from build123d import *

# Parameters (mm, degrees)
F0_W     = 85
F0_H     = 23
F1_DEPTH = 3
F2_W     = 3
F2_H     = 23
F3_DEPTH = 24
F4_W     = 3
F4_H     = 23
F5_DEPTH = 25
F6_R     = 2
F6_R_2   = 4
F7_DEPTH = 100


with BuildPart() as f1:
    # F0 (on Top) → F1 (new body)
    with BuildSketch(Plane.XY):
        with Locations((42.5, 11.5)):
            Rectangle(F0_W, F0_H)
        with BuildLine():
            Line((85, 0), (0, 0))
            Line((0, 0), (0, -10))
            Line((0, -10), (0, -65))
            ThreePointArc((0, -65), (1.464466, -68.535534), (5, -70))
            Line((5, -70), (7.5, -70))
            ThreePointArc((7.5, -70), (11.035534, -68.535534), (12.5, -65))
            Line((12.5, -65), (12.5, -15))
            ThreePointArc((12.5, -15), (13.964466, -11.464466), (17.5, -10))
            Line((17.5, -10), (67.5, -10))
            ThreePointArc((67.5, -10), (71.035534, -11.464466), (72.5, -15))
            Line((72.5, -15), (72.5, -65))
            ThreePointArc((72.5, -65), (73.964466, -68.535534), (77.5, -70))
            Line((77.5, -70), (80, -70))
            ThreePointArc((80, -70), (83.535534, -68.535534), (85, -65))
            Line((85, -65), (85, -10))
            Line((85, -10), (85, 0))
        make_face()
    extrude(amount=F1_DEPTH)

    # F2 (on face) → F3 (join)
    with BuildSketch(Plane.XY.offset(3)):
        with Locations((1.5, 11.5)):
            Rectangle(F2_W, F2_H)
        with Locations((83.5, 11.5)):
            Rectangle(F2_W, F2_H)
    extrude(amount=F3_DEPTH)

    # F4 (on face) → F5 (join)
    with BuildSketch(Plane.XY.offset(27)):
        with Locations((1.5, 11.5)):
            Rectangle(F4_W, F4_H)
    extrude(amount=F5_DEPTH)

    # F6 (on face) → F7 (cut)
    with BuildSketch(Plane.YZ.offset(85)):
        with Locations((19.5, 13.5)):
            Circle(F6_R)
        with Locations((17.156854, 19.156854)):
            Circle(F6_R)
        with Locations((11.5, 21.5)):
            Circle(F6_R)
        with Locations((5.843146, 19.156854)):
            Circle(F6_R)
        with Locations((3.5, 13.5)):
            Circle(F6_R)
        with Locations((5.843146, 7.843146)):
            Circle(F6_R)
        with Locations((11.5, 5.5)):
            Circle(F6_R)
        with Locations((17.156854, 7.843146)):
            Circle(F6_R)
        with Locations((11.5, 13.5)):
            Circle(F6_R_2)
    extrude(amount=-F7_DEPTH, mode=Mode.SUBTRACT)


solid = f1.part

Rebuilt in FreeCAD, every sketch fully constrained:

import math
import FreeCAD as App
import Part
import Sketcher
Q = App.Units.Quantity


def add_polygon(sketch, points):
    """Adds a closed chain of lines whose ends are joined by coincident constraints."""
    first, n = sketch.GeometryCount, len(points)
    for a, b in zip(points, points[1:] + points[:1]):
        sketch.addGeometry(Part.LineSegment(App.Vector(*a, 0), App.Vector(*b, 0)), False)
    for i in range(n):
        sketch.addConstraint(Sketcher.Constraint("Coincident", first + i, 2, first + (i + 1) % n, 1))

doc = App.newDocument("Part")
params = doc.addObject("Spreadsheet::Sheet", "Params")
for row, (alias, value) in enumerate([
    ("sketch1_radius", "5 mm"),
    ("sketch1_width", "50 mm"),
    ("sketch1_width2", "85 mm"),
    ("sketch1_height", "88 mm"),
    ("pad1_length", "3 mm"),
    ("sketch2_width", "3 mm"),
    ("sketch2_height", "23 mm"),
    ("pad2_length", "24 mm"),
    ("sketch3_width", "3 mm"),
    ("sketch3_height", "23 mm"),
    ("pad3_length", "25 mm"),
    ("sketch4_diameter", "4 mm"),
    ("sketch4_diameter2", "8 mm"),
    ("pocket1_length", "100 mm"),
], start=1):
    params.set(f"A{row}", alias)
    params.set(f"B{row}", "=" + value)
    params.setAlias(f"B{row}", alias)

body = doc.addObject("PartDesign::Body", "Body")

# Sketch on XY plane
sketch1 = doc.addObject("Sketcher::SketchObject", "Sketch")
body.addObject(sketch1)
sketch1.AttachmentSupport = (doc.XY_Plane, [""])
sketch1.MapMode = "FlatFace"
sketch1.addGeometry(Part.LineSegment(App.Vector(0, 23, 0), App.Vector(0, -65, 0)), False)
sketch1.addGeometry(Part.ArcOfCircle(Part.Circle(App.Vector(5, -65, 0), App.Vector(0, 0, 1), 5), math.radians(179.999996), math.radians(270.000004)), False)
sketch1.addGeometry(Part.LineSegment(App.Vector(5, -70, 0), App.Vector(7.5, -70, 0)), False)
sketch1.addGeometry(Part.ArcOfCircle(Part.Circle(App.Vector(7.5, -65, 0), App.Vector(0, 0, 1), 5), math.radians(-90.000004), math.radians(0.000004)), False)
sketch1.addGeometry(Part.LineSegment(App.Vector(12.5, -65, 0), App.Vector(12.5, -15, 0)), False)
sketch1.addGeometry(Part.ArcOfCircle(Part.Circle(App.Vector(17.5, -15, 0), App.Vector(0, 0, 1), 5), math.radians(89.999996), math.radians(180.000004)), False)
sketch1.addGeometry(Part.LineSegment(App.Vector(17.5, -10, 0), App.Vector(67.5, -10, 0)), False)
sketch1.addGeometry(Part.ArcOfCircle(Part.Circle(App.Vector(67.5, -15, 0), App.Vector(0, 0, 1), 5), math.radians(-0.000004), math.radians(90.000004)), False)
sketch1.addGeometry(Part.LineSegment(App.Vector(72.5, -15, 0), App.Vector(72.5, -65, 0)), False)
sketch1.addGeometry(Part.ArcOfCircle(Part.Circle(App.Vector(77.5, -65, 0), App.Vector(0, 0, 1), 5), math.radians(179.999996), math.radians(270.000004)), False)
sketch1.addGeometry(Part.LineSegment(App.Vector(77.5, -70, 0), App.Vector(80, -70, 0)), False)
sketch1.addGeometry(Part.ArcOfCircle(Part.Circle(App.Vector(80, -65, 0), App.Vector(0, 0, 1), 5), math.radians(-90.000004), math.radians(0.000004)), False)
sketch1.addGeometry(Part.LineSegment(App.Vector(85, -65, 0), App.Vector(85, 23, 0)), False)
sketch1.addGeometry(Part.LineSegment(App.Vector(85, 23, 0), App.Vector(0, 23, 0)), False)
sketch1.addConstraint(Sketcher.Constraint("Tangent", 0, 2, 1, 1))
sketch1.addConstraint(Sketcher.Constraint("Tangent", 1, 2, 2, 1))
sketch1.addConstraint(Sketcher.Constraint("Tangent", 2, 2, 3, 1))
sketch1.addConstraint(Sketcher.Constraint("Tangent", 3, 2, 4, 1))
sketch1.addConstraint(Sketcher.Constraint("Tangent", 4, 2, 5, 2))
sketch1.addConstraint(Sketcher.Constraint("Tangent", 5, 1, 6, 1))
sketch1.addConstraint(Sketcher.Constraint("Tangent", 6, 2, 7, 2))
sketch1.addConstraint(Sketcher.Constraint("Tangent", 7, 1, 8, 1))
sketch1.addConstraint(Sketcher.Constraint("Tangent", 8, 2, 9, 1))
sketch1.addConstraint(Sketcher.Constraint("Tangent", 9, 2, 10, 1))
sketch1.addConstraint(Sketcher.Constraint("Tangent", 10, 2, 11, 1))
sketch1.addConstraint(Sketcher.Constraint("Tangent", 11, 2, 12, 1))
sketch1.addConstraint(Sketcher.Constraint("Coincident", 12, 2, 13, 1))
sketch1.addConstraint(Sketcher.Constraint("Coincident", 13, 2, 0, 1))
sketch1.addConstraint(Sketcher.Constraint("Vertical", 0))
sketch1.addConstraint(Sketcher.Constraint("Horizontal", 2))
sketch1.addConstraint(Sketcher.Constraint("Vertical", 4))
sketch1.addConstraint(Sketcher.Constraint("Horizontal", 6))
sketch1.addConstraint(Sketcher.Constraint("Vertical", 8))
sketch1.addConstraint(Sketcher.Constraint("Horizontal", 10))
sketch1.addConstraint(Sketcher.Constraint("Vertical", 12))
sketch1.addConstraint(Sketcher.Constraint("Horizontal", 13))
sketch1.addConstraint(Sketcher.Constraint("Equal", 1, 3))
sketch1.addConstraint(Sketcher.Constraint("Equal", 3, 5))
sketch1.addConstraint(Sketcher.Constraint("Equal", 5, 7))
sketch1.addConstraint(Sketcher.Constraint("Equal", 7, 9))
sketch1.addConstraint(Sketcher.Constraint("Equal", 9, 11))
sketch1.addConstraint(Sketcher.Constraint("PointOnObject", 0, 2, -2))
sketch1.addConstraint(Sketcher.Constraint("Horizontal", 3, 3, 9, 3))
sketch1.addConstraint(Sketcher.Constraint("Equal", 2, 10))
sketch1.addConstraint(Sketcher.Constraint("Equal", 6, 4))
sketch1.addConstraint(Sketcher.Constraint("Radius", 1, Q("5 mm")))
sketch1.addConstraint(Sketcher.Constraint("DistanceX", 6, 1, 6, 2, Q("50 mm")))
sketch1.addConstraint(Sketcher.Constraint("DistanceX", 13, 2, 13, 1, Q("85 mm")))
sketch1.addConstraint(Sketcher.Constraint("DistanceY", 0, 2, 0, 1, Q("88 mm")))
sketch1.addConstraint(Sketcher.Constraint("DistanceY", 1, 3, -1, 1, Q("65 mm")))
sketch1.setExpression("Constraints[31]", "Params.sketch1_radius")
sketch1.setExpression("Constraints[32]", "Params.sketch1_width")
sketch1.setExpression("Constraints[33]", "Params.sketch1_width2")
sketch1.setExpression("Constraints[34]", "Params.sketch1_height")
pad1 = doc.addObject("PartDesign::Pad", "Pad")
body.addObject(pad1)
pad1.Profile = sketch1
pad1.setExpression("Length", "Params.pad1_length")

# Sketch on XY plane
sketch2 = doc.addObject("Sketcher::SketchObject", "Sketch001")
body.addObject(sketch2)
sketch2.AttachmentSupport = (doc.XY_Plane, [""])
sketch2.MapMode = "FlatFace"
sketch2.AttachmentOffset = App.Placement(App.Vector(0, 0, 3), App.Rotation())
add_polygon(sketch2, [(0, 23), (0, 0), (3, 0), (3, 23)])  # lines 0-3
add_polygon(sketch2, [(82, 23), (82, 0), (85, 0), (85, 23)])  # lines 4-7
sketch2.addConstraint(Sketcher.Constraint("Vertical", 0))
sketch2.addConstraint(Sketcher.Constraint("Horizontal", 1))
sketch2.addConstraint(Sketcher.Constraint("Vertical", 2))
sketch2.addConstraint(Sketcher.Constraint("Horizontal", 3))
sketch2.addConstraint(Sketcher.Constraint("Vertical", 4))
sketch2.addConstraint(Sketcher.Constraint("Horizontal", 5))
sketch2.addConstraint(Sketcher.Constraint("Vertical", 6))
sketch2.addConstraint(Sketcher.Constraint("Horizontal", 7))
sketch2.addConstraint(Sketcher.Constraint("Coincident", 0, 2, -1, 1))
sketch2.addConstraint(Sketcher.Constraint("PointOnObject", 4, 2, -1))
sketch2.addConstraint(Sketcher.Constraint("Horizontal", 3, 2, 6, 2))
sketch2.addConstraint(Sketcher.Constraint("Equal", 3, 5))
sketch2.addConstraint(Sketcher.Constraint("DistanceX", 1, 1, 1, 2, Q("3 mm")))
sketch2.addConstraint(Sketcher.Constraint("DistanceY", 0, 2, 0, 1, Q("23 mm")))
sketch2.addConstraint(Sketcher.Constraint("DistanceX", -1, 1, 4, 2, Q("82 mm")))
sketch2.setExpression("Constraints[20]", "Params.sketch2_width")
sketch2.setExpression("Constraints[21]", "Params.sketch2_height")
pad2 = doc.addObject("PartDesign::Pad", "Pad001")
body.addObject(pad2)
pad2.Profile = sketch2
pad2.setExpression("Length", "Params.pad2_length")

# Sketch on XY plane
sketch3 = doc.addObject("Sketcher::SketchObject", "Sketch002")
body.addObject(sketch3)
sketch3.AttachmentSupport = (doc.XY_Plane, [""])
sketch3.MapMode = "FlatFace"
sketch3.AttachmentOffset = App.Placement(App.Vector(0, 0, 27), App.Rotation())
add_polygon(sketch3, [(0, 23), (0, 0), (3, 0), (3, 23)])  # lines 0-3
sketch3.addConstraint(Sketcher.Constraint("Vertical", 0))
sketch3.addConstraint(Sketcher.Constraint("Horizontal", 1))
sketch3.addConstraint(Sketcher.Constraint("Vertical", 2))
sketch3.addConstraint(Sketcher.Constraint("Horizontal", 3))
sketch3.addConstraint(Sketcher.Constraint("Coincident", 0, 2, -1, 1))
sketch3.addConstraint(Sketcher.Constraint("DistanceX", 1, 1, 1, 2, Q("3 mm")))
sketch3.addConstraint(Sketcher.Constraint("DistanceY", 0, 2, 0, 1, Q("23 mm")))
sketch3.setExpression("Constraints[9]", "Params.sketch3_width")
sketch3.setExpression("Constraints[10]", "Params.sketch3_height")
pad3 = doc.addObject("PartDesign::Pad", "Pad002")
body.addObject(pad3)
pad3.Profile = sketch3
pad3.setExpression("Length", "Params.pad3_length")

# Sketch on YZ plane
sketch4 = doc.addObject("Sketcher::SketchObject", "Sketch003")
body.addObject(sketch4)
sketch4.AttachmentSupport = (doc.YZ_Plane, [""])
sketch4.MapMode = "FlatFace"
sketch4.AttachmentOffset = App.Placement(App.Vector(0, 0, 85), App.Rotation())
sketch4.addGeometry(Part.Circle(App.Vector(19.5, 13.5, 0), App.Vector(0, 0, 1), 2), False)
sketch4.addGeometry(Part.Circle(App.Vector(17.156854, 19.156854, 0), App.Vector(0, 0, 1), 2), False)
sketch4.addGeometry(Part.Circle(App.Vector(11.5, 21.5, 0), App.Vector(0, 0, 1), 2), False)
sketch4.addGeometry(Part.Circle(App.Vector(5.843146, 19.156854, 0), App.Vector(0, 0, 1), 2), False)
sketch4.addGeometry(Part.Circle(App.Vector(3.5, 13.5, 0), App.Vector(0, 0, 1), 2), False)
sketch4.addGeometry(Part.Circle(App.Vector(5.843146, 7.843146, 0), App.Vector(0, 0, 1), 2), False)
sketch4.addGeometry(Part.Circle(App.Vector(11.5, 5.5, 0), App.Vector(0, 0, 1), 2), False)
sketch4.addGeometry(Part.Circle(App.Vector(17.156854, 7.843146, 0), App.Vector(0, 0, 1), 2), False)
sketch4.addGeometry(Part.Circle(App.Vector(11.5, 13.5, 0), App.Vector(0, 0, 1), 4), False)
sketch4.addConstraint(Sketcher.Constraint("Equal", 0, 1))
sketch4.addConstraint(Sketcher.Constraint("Equal", 1, 2))
sketch4.addConstraint(Sketcher.Constraint("Equal", 2, 3))
sketch4.addConstraint(Sketcher.Constraint("Equal", 3, 4))
sketch4.addConstraint(Sketcher.Constraint("Equal", 4, 5))
sketch4.addConstraint(Sketcher.Constraint("Equal", 5, 6))
sketch4.addConstraint(Sketcher.Constraint("Equal", 6, 7))
sketch4.addConstraint(Sketcher.Constraint("Horizontal", 1, 3, 3, 3))
sketch4.addConstraint(Sketcher.Constraint("Horizontal", 0, 3, 4, 3))
sketch4.addConstraint(Sketcher.Constraint("Horizontal", 5, 3, 7, 3))
sketch4.addConstraint(Sketcher.Constraint("Horizontal", 4, 3, 8, 3))
sketch4.addConstraint(Sketcher.Constraint("Vertical", 3, 3, 5, 3))
sketch4.addConstraint(Sketcher.Constraint("Vertical", 2, 3, 6, 3))
sketch4.addConstraint(Sketcher.Constraint("Vertical", 1, 3, 7, 3))
sketch4.addConstraint(Sketcher.Constraint("Vertical", 6, 3, 8, 3))
sketch4.addConstraint(Sketcher.Constraint("Diameter", 0, Q("4 mm")))
sketch4.addConstraint(Sketcher.Constraint("Diameter", 8, Q("8 mm")))
sketch4.addConstraint(Sketcher.Constraint("DistanceX", 2, 3, 0, 3, Q("8 mm")))
sketch4.addConstraint(Sketcher.Constraint("DistanceY", 0, 3, 2, 3, Q("8 mm")))
sketch4.addConstraint(Sketcher.Constraint("DistanceX", 4, 3, 2, 3, Q("8 mm")))
sketch4.addConstraint(Sketcher.Constraint("DistanceY", 6, 3, 0, 3, Q("8 mm")))
sketch4.addConstraint(Sketcher.Constraint("DistanceX", -1, 1, 0, 3, Q("19.5 mm")))
sketch4.addConstraint(Sketcher.Constraint("DistanceY", -1, 1, 0, 3, Q("13.5 mm")))
sketch4.addConstraint(Sketcher.Constraint("DistanceX", -1, 1, 1, 3, Q("17.156854 mm")))
sketch4.addConstraint(Sketcher.Constraint("DistanceY", -1, 1, 1, 3, Q("19.156854 mm")))
sketch4.addConstraint(Sketcher.Constraint("DistanceX", -1, 1, 3, 3, Q("5.843146 mm")))
sketch4.addConstraint(Sketcher.Constraint("DistanceY", -1, 1, 5, 3, Q("7.843146 mm")))
sketch4.setExpression("Constraints[15]", "Params.sketch4_diameter")
sketch4.setExpression("Constraints[16]", "Params.sketch4_diameter2")
pocket1 = doc.addObject("PartDesign::Pocket", "Pocket")
body.addObject(pocket1)
pocket1.Profile = sketch4
pocket1.setExpression("Length", "Params.pocket1_length")

doc.recompute()
